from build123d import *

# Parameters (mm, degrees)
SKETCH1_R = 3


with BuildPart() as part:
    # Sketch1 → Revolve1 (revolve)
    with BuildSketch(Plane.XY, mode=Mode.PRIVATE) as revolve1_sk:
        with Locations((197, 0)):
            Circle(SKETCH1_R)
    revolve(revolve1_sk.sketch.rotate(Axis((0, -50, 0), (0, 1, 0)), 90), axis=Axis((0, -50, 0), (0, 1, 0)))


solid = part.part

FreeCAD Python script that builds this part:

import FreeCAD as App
import Part
import Sketcher
from FreeCAD import Vector
Q = App.Units.Quantity

doc = App.newDocument("Part")
body = doc.addObject("PartDesign::Body", "Body")

# Sketch on XY plane
sketch1 = doc.addObject("Sketcher::SketchObject", "Sketch")
body.addObject(sketch1)
sketch1.AttachmentSupport = (doc.XY_Plane, [""])
sketch1.MapMode = "FlatFace"
sketch1.addGeometry(Part.Circle(Vector(197, 0, 0), Vector(0, 0, 1), 3), False)
sketch1.addConstraint(Sketcher.Constraint("PointOnObject", 0, 3, -1))
sketch1.addConstraint(Sketcher.Constraint("Diameter", 0, Q("6 mm")))
sketch1.addConstraint(Sketcher.Constraint("DistanceX", -1, 1, 0, 3, Q("197 mm")))
revolution = doc.addObject("PartDesign::Revolution", "Revolution")
body.addObject(revolution)
revolution.Profile = sketch1
revolution.ReferenceAxis = (sketch1, ["V_Axis"])
revolution.Angle = 360

doc.recompute()
